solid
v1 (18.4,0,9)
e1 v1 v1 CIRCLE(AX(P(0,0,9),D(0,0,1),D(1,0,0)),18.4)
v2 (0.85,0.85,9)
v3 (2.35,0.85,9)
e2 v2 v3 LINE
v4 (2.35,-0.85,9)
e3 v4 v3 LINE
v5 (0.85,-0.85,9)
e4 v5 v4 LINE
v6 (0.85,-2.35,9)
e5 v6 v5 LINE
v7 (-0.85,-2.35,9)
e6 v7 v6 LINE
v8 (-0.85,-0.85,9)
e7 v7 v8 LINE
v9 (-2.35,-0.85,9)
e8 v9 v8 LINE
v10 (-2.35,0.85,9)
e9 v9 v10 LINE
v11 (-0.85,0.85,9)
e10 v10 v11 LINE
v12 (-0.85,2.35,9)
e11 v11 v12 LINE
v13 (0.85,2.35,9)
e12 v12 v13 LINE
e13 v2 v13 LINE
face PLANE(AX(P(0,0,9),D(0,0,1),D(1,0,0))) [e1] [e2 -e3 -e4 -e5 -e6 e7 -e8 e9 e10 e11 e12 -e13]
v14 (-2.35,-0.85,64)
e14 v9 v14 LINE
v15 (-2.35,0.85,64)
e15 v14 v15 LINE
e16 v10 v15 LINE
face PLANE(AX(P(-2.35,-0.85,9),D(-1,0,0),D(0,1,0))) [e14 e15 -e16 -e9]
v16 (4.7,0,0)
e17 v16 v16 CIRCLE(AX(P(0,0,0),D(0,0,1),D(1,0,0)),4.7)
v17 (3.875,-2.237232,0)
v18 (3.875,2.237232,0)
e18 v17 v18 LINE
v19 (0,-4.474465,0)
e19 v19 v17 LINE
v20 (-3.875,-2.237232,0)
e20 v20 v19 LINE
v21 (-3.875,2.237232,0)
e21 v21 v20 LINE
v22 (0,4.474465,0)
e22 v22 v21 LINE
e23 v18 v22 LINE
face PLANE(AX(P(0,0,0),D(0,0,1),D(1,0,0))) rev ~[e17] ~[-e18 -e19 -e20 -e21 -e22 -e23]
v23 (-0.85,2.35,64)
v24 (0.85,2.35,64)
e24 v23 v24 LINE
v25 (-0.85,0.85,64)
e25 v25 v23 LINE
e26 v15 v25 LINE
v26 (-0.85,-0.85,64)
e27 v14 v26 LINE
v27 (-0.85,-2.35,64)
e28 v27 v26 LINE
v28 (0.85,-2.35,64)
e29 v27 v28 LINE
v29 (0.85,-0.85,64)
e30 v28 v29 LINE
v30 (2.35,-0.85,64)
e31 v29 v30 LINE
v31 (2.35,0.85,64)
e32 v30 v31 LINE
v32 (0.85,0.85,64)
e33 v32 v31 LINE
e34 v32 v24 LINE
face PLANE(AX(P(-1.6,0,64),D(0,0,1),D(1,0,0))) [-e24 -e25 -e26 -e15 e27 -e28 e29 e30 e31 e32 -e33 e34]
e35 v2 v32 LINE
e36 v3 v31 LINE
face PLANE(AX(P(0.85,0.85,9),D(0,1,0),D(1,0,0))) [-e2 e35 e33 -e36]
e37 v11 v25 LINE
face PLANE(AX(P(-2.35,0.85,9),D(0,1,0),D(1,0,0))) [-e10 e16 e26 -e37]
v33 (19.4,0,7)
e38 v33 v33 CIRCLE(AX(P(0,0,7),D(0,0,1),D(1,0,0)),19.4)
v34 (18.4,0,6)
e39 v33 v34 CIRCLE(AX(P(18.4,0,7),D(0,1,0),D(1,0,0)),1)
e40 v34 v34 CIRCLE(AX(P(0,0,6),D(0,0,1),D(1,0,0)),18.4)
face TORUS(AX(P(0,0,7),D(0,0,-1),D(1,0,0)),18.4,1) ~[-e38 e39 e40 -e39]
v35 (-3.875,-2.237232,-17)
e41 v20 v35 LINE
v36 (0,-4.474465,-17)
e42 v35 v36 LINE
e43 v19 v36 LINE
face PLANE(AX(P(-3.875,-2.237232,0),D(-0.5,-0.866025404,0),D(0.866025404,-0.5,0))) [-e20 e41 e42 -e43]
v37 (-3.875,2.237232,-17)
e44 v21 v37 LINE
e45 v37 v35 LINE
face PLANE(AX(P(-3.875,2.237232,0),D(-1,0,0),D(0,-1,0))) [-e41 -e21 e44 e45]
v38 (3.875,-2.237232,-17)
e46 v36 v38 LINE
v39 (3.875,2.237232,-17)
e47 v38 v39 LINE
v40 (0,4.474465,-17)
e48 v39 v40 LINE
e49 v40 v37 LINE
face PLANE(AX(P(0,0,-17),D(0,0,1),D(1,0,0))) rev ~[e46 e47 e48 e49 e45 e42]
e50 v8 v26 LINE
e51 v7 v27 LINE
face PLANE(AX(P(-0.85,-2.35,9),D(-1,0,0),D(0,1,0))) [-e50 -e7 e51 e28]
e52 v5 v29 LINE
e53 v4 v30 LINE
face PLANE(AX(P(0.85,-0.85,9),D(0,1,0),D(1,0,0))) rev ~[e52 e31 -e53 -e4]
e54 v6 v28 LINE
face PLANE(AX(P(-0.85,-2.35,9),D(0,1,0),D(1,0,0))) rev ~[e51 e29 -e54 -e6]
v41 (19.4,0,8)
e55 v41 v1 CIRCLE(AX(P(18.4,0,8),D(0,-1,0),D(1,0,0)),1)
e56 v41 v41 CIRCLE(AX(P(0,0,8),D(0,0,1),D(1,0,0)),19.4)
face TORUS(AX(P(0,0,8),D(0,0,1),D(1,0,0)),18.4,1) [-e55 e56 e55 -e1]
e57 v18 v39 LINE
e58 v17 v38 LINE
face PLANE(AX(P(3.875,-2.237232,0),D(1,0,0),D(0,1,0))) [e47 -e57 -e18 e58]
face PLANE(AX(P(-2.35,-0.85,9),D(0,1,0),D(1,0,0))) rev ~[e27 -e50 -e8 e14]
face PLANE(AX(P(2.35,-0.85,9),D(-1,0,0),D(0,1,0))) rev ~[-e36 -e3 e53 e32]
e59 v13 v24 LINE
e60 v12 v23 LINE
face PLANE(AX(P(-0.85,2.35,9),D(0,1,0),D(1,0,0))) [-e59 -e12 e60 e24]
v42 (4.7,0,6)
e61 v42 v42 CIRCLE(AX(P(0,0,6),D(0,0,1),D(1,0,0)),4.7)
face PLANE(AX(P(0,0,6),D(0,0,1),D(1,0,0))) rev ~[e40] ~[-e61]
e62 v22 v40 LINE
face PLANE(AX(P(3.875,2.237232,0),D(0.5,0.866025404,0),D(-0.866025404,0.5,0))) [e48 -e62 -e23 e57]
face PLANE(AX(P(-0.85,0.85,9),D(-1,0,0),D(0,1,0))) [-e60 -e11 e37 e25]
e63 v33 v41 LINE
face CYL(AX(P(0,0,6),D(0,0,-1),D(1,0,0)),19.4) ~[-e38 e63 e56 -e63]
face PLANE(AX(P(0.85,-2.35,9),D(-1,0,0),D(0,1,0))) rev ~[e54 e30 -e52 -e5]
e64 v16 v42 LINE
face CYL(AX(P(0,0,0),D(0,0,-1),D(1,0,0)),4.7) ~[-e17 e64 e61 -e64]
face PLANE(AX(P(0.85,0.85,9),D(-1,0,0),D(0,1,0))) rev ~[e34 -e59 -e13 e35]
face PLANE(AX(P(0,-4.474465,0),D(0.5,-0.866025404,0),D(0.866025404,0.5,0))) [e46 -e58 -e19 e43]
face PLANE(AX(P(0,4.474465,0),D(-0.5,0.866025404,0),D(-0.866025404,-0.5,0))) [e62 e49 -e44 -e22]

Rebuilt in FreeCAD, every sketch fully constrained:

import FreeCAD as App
import Part
import Sketcher

V = App.Vector
Q = App.Units.Quantity


def edges_at(feature, points):
    """Names of the edges that pass closest to the given points."""
    edges = feature.Shape.Edges
    near = lambda p: min(range(len(edges)), key=lambda i: edges[i].distToShape(Part.Vertex(*p))[0])
    return sorted({f"Edge{near(p) + 1}" for p in points})

doc = App.newDocument("Part")
body = doc.addObject("PartDesign::Body", "Body")

# Sketch on XY plane
sketch1 = doc.addObject("Sketcher::SketchObject", "Sketch")
body.addObject(sketch1)
sketch1.AttachmentSupport = (doc.XY_Plane, [""])
sketch1.MapMode = "FlatFace"
sketch1.addGeometry(Part.LineSegment(V(3.9, -2.2, 0), V(3.9, 2.2, 0)), False)
sketch1.addGeometry(Part.LineSegment(V(3.9, 2.2, 0), V(0, 4.5, 0)), False)
sketch1.addGeometry(Part.LineSegment(V(0, 4.5, 0), V(-3.9, 2.2, 0)), False)
sketch1.addGeometry(Part.LineSegment(V(-3.9, 2.2, 0), V(-3.9, -2.2, 0)), False)
sketch1.addGeometry(Part.LineSegment(V(-3.9, -2.2, 0), V(0, -4.5, 0)), False)
sketch1.addGeometry(Part.LineSegment(V(0, -4.5, 0), V(3.9, -2.2, 0)), False)
sketch1.addConstraint(Sketcher.Constraint("Coincident", 0, 2, 1, 1))
sketch1.addConstraint(Sketcher.Constraint("Coincident", 1, 2, 2, 1))
sketch1.addConstraint(Sketcher.Constraint("Coincident", 2, 2, 3, 1))
sketch1.addConstraint(Sketcher.Constraint("Coincident", 3, 2, 4, 1))
sketch1.addConstraint(Sketcher.Constraint("Coincident", 4, 2, 5, 1))
sketch1.addConstraint(Sketcher.Constraint("Coincident", 5, 2, 0, 1))
sketch1.addConstraint(Sketcher.Constraint("Vertical", 0))
sketch1.addConstraint(Sketcher.Constraint("Vertical", 3))
sketch1.addConstraint(Sketcher.Constraint("Symmetric", 0, 2, 3, 2, -1, 1))
sketch1.addConstraint(Sketcher.Constraint("Symmetric", 1, 2, 4, 2, -1, 1))
sketch1.addConstraint(Sketcher.Constraint("PointOnObject", 1, 2, -2))
sketch1.addConstraint(Sketcher.Constraint("Parallel", 2, 5))
sketch1.addConstraint(Sketcher.Constraint("Horizontal", 0, 2, 2, 2))
sketch1.addConstraint(Sketcher.Constraint("Angle", 1, Q("150 deg")))
sketch1.addConstraint(Sketcher.Constraint("DistanceX", 2, 2, 0, 2, Q("7.75 mm")))
sketch1.addConstraint(Sketcher.Constraint("DistanceY", 0, 1, 0, 2, Q("4.474465 mm")))
pad1 = doc.addObject("PartDesign::Pad", "Pad")
body.addObject(pad1)
pad1.Profile = sketch1
pad1.Length = 17
pad1.Reversed = True

# Sketch on XY plane
sketch2 = doc.addObject("Sketcher::SketchObject", "Sketch001")
body.addObject(sketch2)
sketch2.AttachmentSupport = (doc.XY_Plane, [""])
sketch2.MapMode = "FlatFace"
sketch2.addGeometry(Part.Circle(V(0, 0, 0), V(0, 0, 1), 4.7), False)
sketch2.addConstraint(Sketcher.Constraint("Coincident", 0, 3, -1, 1))
sketch2.addConstraint(Sketcher.Constraint("Diameter", 0, Q("9.4 mm")))
pad2 = doc.addObject("PartDesign::Pad", "Pad001")
body.addObject(pad2)
pad2.Profile = sketch2
pad2.Length = 6

# Sketch on XY plane
sketch3 = doc.addObject("Sketcher::SketchObject", "Sketch002")
body.addObject(sketch3)
sketch3.AttachmentSupport = (doc.XY_Plane, [""])
sketch3.MapMode = "FlatFace"
sketch3.AttachmentOffset = App.Placement(V(0, 0, 6), App.Rotation())
sketch3.addGeometry(Part.Circle(V(0, 0, 0), V(0, 0, 1), 19), False)
sketch3.addConstraint(Sketcher.Constraint("Coincident", 0, 3, -1, 1))
sketch3.addConstraint(Sketcher.Constraint("Diameter", 0, Q("38.8 mm")))
pad3 = doc.addObject("PartDesign::Pad", "Pad002")
body.addObject(pad3)
pad3.Profile = sketch3
pad3.Length = 3

# Sketch on XY plane
sketch4 = doc.addObject("Sketcher::SketchObject", "Sketch003")
body.addObject(sketch4)
sketch4.AttachmentSupport = (doc.XY_Plane, [""])
sketch4.MapMode = "FlatFace"
sketch4.AttachmentOffset = App.Placement(V(0, 0, 9), App.Rotation())
sketch4.addGeometry(Part.LineSegment(V(-2.4, 0.8, 0), V(-2.4, -0.8, 0)), False)
sketch4.addGeometry(Part.LineSegment(V(-2.4, -0.8, 0), V(-0.8, -0.8, 0)), False)
sketch4.addGeometry(Part.LineSegment(V(-0.8, -0.8, 0), V(-0.8, -2.4, 0)), False)
sketch4.addGeometry(Part.LineSegment(V(-0.8, -2.4, 0), V(0.8, -2.4, 0)), False)
sketch4.addGeometry(Part.LineSegment(V(0.8, -2.4, 0), V(0.8, -0.8, 0)), False)
sketch4.addGeometry(Part.LineSegment(V(0.8, -0.8, 0), V(2.4, -0.8, 0)), False)
sketch4.addGeometry(Part.LineSegment(V(2.4, -0.8, 0), V(2.4, 0.8, 0)), False)
sketch4.addGeometry(Part.LineSegment(V(2.4, 0.8, 0), V(0.8, 0.8, 0)), False)
sketch4.addGeometry(Part.LineSegment(V(0.8, 0.8, 0), V(0.8, 2.4, 0)), False)
sketch4.addGeometry(Part.LineSegment(V(0.8, 2.4, 0), V(-0.8, 2.4, 0)), False)
sketch4.addGeometry(Part.LineSegment(V(-0.8, 2.4, 0), V(-0.8, 0.8, 0)), False)
sketch4.addGeometry(Part.LineSegment(V(-0.8, 0.8, 0), V(-2.4, 0.8, 0)), False)
sketch4.addConstraint(Sketcher.Constraint("Coincident", 0, 2, 1, 1))
sketch4.addConstraint(Sketcher.Constraint("Coincident", 1, 2, 2, 1))
sketch4.addConstraint(Sketcher.Constraint("Coincident", 2, 2, 3, 1))
sketch4.addConstraint(Sketcher.Constraint("Coincident", 3, 2, 4, 1))
sketch4.addConstraint(Sketcher.Constraint("Coincident", 4, 2, 5, 1))
sketch4.addConstraint(Sketcher.Constraint("Coincident", 5, 2, 6, 1))
sketch4.addConstraint(Sketcher.Constraint("Coincident", 6, 2, 7, 1))
sketch4.addConstraint(Sketcher.Constraint("Coincident", 7, 2, 8, 1))
sketch4.addConstraint(Sketcher.Constraint("Coincident", 8, 2, 9, 1))
sketch4.addConstraint(Sketcher.Constraint("Coincident", 9, 2, 10, 1))
sketch4.addConstraint(Sketcher.Constraint("Coincident", 10, 2, 11, 1))
sketch4.addConstraint(Sketcher.Constraint("Coincident", 11, 2, 0, 1))
sketch4.addConstraint(Sketcher.Constraint("Vertical", 0))
sketch4.addConstraint(Sketcher.Constraint("Horizontal", 1))
sketch4.addConstraint(Sketcher.Constraint("Vertical", 2))
sketch4.addConstraint(Sketcher.Constraint("Horizontal", 3))
sketch4.addConstraint(Sketcher.Constraint("Vertical", 4))
sketch4.addConstraint(Sketcher.Constraint("Horizontal", 5))
sketch4.addConstraint(Sketcher.Constraint("Vertical", 6))
sketch4.addConstraint(Sketcher.Constraint("Horizontal", 7))
sketch4.addConstraint(Sketcher.Constraint("Vertical", 8))
sketch4.addConstraint(Sketcher.Constraint("Horizontal", 9))
sketch4.addConstraint(Sketcher.Constraint("Vertical", 10))
sketch4.addConstraint(Sketcher.Constraint("Horizontal", 11))
sketch4.addConstraint(Sketcher.Constraint("Symmetric", 0, 2, 6, 2, -1, 1))
sketch4.addConstraint(Sketcher.Constraint("Symmetric", 2, 2, 8, 2, -1, 1))
sketch4.addConstraint(Sketcher.Constraint("Symmetric", 4, 2, 10, 2, -1, 1))
sketch4.addConstraint(Sketcher.Constraint("Symmetric", 1, 2, 4, 2, -2))
sketch4.addConstraint(Sketcher.Constraint("Equal", 9, 0))
sketch4.addConstraint(Sketcher.Constraint("Equal", 11, 2))
sketch4.addConstraint(Sketcher.Constraint("DistanceX", 1, 1, 1, 2, Q("1.5 mm")))
sketch4.addConstraint(Sketcher.Constraint("DistanceX", 3, 1, 3, 2, Q("1.7 mm")))
pad4 = doc.addObject("PartDesign::Pad", "Pad003")
body.addObject(pad4)
pad4.Profile = sketch4
pad4.Length = 55
doc.recompute()

fillet = doc.addObject("PartDesign::Fillet", "Fillet")
body.addObject(fillet)
fillet.Base = (pad4, edges_at(pad4, [(-19.4, 0, 6), (-19.4, 0, 9)]))
fillet.Radius = 1

doc.recompute()
